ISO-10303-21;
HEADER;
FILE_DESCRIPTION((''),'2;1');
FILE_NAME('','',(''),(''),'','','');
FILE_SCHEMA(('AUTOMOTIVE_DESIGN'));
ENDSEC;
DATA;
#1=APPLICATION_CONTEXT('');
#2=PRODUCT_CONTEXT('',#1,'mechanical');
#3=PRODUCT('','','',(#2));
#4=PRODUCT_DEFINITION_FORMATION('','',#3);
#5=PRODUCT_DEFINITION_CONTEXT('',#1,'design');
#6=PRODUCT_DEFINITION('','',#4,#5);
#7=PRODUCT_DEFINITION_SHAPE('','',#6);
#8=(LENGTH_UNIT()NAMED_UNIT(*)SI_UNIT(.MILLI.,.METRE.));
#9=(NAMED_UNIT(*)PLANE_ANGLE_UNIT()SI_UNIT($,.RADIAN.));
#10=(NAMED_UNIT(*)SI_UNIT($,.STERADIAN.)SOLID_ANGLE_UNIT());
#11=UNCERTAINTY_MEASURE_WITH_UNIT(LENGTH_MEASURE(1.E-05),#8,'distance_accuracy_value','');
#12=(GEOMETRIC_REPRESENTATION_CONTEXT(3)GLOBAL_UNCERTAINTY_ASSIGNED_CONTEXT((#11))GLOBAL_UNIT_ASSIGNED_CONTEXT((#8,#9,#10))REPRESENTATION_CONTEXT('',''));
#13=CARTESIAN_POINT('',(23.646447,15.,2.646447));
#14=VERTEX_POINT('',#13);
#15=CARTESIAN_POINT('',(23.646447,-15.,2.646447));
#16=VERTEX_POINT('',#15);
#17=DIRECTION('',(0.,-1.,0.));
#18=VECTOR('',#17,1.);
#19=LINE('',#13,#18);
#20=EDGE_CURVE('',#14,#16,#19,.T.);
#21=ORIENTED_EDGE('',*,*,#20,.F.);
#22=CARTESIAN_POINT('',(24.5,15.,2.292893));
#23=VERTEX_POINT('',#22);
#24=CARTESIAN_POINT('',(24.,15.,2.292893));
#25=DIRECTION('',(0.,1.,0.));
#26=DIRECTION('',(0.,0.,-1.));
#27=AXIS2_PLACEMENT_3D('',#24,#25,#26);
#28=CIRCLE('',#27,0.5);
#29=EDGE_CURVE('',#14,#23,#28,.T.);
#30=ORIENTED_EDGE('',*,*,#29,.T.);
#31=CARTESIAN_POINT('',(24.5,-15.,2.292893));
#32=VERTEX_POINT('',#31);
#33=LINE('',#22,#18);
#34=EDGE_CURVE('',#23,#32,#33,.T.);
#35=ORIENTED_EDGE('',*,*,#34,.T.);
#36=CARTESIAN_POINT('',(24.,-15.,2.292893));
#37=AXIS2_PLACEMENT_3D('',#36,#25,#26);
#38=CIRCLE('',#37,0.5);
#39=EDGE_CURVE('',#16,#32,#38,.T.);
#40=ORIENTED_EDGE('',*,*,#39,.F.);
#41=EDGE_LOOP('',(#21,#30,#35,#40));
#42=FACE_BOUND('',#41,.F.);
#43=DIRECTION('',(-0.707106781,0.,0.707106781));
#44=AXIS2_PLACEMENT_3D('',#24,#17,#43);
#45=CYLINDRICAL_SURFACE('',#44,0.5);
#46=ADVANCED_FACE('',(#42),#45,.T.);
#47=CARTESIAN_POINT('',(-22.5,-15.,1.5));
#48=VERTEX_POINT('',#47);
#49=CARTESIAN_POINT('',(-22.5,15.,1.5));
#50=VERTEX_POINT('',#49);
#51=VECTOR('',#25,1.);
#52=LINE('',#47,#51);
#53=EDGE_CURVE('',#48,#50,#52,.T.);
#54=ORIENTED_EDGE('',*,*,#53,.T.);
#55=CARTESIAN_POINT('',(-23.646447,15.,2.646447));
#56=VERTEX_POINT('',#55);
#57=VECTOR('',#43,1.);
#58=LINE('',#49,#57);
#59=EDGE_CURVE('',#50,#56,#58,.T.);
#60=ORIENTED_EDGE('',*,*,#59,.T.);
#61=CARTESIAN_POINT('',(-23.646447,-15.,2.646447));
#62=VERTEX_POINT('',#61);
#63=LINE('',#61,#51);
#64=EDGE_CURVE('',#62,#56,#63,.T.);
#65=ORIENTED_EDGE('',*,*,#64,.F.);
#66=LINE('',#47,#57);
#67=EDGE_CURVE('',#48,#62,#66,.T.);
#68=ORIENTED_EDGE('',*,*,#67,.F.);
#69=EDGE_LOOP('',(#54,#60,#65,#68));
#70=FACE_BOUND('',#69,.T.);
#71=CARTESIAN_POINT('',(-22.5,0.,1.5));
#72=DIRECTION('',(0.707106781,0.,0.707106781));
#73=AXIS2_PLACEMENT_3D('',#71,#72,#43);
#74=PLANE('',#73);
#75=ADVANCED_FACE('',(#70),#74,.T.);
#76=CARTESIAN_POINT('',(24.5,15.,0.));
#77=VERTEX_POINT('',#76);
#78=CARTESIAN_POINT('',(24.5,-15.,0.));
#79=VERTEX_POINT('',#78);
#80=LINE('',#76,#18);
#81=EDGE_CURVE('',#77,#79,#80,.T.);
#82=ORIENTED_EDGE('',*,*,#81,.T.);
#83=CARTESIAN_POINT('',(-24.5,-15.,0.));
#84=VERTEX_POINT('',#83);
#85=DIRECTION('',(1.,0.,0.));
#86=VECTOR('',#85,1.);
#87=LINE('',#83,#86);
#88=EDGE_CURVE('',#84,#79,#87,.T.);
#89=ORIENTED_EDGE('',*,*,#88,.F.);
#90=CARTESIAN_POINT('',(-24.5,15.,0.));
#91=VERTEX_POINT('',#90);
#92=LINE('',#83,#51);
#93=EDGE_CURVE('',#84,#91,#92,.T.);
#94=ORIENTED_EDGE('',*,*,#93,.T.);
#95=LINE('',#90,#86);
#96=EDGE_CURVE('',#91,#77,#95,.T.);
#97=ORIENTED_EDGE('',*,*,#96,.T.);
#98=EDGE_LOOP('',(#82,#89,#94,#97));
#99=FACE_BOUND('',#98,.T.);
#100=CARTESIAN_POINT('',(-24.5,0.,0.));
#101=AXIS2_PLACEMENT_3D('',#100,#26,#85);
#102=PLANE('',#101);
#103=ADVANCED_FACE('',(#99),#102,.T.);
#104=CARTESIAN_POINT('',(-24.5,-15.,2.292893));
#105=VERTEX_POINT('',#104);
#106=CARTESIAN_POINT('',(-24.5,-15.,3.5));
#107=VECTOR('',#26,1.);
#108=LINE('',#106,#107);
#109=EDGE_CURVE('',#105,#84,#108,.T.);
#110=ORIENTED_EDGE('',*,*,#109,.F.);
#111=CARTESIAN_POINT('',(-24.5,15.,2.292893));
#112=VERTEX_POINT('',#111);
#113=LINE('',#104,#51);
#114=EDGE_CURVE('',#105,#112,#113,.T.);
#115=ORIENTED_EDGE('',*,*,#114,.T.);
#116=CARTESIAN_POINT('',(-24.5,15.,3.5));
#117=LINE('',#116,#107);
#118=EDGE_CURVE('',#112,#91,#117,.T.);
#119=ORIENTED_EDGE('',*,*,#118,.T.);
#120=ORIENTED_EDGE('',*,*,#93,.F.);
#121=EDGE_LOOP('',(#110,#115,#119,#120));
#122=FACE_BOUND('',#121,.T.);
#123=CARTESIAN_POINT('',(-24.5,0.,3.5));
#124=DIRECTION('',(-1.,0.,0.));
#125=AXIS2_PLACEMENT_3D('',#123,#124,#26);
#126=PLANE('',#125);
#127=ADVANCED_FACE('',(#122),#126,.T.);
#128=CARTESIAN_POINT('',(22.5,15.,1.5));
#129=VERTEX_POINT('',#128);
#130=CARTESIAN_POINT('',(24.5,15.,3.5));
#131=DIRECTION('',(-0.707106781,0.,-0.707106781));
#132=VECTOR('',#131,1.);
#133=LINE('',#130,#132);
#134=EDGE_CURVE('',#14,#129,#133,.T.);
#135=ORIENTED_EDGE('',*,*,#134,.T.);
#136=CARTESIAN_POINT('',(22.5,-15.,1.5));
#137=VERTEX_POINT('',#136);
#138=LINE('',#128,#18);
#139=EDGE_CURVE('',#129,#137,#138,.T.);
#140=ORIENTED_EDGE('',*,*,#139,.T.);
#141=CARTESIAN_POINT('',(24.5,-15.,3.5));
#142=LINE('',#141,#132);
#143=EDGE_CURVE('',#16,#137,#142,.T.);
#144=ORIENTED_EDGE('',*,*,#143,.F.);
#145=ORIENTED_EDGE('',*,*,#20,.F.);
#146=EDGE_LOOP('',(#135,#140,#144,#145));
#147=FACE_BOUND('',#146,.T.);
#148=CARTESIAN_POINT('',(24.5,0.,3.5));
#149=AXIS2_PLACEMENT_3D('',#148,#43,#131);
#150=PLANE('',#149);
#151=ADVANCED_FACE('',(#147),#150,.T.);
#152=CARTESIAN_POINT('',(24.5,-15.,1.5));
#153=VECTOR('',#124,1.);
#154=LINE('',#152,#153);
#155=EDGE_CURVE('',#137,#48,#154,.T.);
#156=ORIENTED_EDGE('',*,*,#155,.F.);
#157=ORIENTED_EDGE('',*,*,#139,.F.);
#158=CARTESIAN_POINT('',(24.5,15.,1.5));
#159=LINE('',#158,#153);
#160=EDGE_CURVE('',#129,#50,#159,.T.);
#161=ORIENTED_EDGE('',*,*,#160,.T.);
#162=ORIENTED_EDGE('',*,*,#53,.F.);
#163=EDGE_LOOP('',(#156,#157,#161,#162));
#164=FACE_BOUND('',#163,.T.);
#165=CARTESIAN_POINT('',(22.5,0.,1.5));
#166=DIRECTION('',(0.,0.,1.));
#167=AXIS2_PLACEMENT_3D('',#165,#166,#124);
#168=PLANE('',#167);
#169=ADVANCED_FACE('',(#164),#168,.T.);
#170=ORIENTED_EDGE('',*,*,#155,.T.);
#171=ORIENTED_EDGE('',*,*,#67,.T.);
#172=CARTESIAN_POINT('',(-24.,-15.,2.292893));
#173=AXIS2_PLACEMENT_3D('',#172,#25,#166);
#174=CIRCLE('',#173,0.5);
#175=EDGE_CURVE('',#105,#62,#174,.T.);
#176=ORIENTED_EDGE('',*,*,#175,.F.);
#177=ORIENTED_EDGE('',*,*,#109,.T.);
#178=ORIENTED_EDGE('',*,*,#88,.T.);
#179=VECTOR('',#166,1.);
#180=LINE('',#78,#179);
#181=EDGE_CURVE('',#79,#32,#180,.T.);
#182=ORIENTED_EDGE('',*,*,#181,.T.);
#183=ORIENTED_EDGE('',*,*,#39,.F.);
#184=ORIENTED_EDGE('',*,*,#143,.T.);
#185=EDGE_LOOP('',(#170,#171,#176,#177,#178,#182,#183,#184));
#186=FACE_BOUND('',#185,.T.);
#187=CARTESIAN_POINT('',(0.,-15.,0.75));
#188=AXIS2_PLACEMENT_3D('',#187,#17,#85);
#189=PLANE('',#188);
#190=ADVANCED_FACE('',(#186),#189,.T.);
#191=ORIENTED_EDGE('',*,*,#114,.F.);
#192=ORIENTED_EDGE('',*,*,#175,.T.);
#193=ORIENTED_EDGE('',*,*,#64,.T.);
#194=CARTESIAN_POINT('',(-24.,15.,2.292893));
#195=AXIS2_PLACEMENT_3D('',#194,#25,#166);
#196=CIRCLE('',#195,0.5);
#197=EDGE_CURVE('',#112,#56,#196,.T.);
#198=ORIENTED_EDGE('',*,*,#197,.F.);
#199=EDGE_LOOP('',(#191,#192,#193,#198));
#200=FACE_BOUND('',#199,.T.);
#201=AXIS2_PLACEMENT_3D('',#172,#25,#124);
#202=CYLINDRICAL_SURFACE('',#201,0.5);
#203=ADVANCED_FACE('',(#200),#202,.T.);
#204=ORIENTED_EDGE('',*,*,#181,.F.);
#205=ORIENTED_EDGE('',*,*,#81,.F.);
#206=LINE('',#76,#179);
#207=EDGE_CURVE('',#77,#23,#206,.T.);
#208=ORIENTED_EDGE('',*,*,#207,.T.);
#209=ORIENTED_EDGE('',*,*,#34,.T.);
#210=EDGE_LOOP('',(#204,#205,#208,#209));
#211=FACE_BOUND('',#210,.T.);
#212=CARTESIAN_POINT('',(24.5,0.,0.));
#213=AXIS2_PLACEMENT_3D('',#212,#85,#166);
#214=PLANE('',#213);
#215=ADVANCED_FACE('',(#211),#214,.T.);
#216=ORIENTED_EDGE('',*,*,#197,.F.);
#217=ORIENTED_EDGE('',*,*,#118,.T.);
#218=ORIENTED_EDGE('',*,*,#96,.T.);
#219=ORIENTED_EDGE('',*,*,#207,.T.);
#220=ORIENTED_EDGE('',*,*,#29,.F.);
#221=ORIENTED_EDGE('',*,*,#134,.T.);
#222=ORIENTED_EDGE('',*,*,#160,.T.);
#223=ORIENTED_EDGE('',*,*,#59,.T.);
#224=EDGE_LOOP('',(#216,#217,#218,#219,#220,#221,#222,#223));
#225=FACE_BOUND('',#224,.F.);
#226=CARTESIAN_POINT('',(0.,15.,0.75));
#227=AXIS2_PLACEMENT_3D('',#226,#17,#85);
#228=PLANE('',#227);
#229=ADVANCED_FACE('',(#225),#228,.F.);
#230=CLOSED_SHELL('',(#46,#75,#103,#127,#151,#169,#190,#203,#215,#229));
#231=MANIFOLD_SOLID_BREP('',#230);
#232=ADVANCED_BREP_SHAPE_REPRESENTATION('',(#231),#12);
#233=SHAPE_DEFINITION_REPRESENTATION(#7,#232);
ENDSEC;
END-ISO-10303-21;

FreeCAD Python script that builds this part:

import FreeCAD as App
import Part
import Sketcher


def edges_at(feature, points):
    """Names of the edges that pass closest to the given points."""
    edges = feature.Shape.Edges
    near = lambda p: min(range(len(edges)), key=lambda i: edges[i].distToShape(Part.Vertex(*p))[0])
    return sorted({f"Edge{near(p) + 1}" for p in points})

doc = App.newDocument("Part")
params = doc.addObject("Spreadsheet::Sheet", "Params")
for row, (alias, value) in enumerate([
    ("sketch1_width", "49 mm"),
    ("sketch1_width2", "45 mm"),
    ("sketch1_height", "3.5 mm"),
    ("pad1_length", "30 mm"),
    ("fillet_radius", "0.5 mm"),
], start=1):
    params.set(f"A{row}", alias)
    params.set(f"B{row}", "=" + value)
    params.setAlias(f"B{row}", alias)

body = doc.addObject("PartDesign::Body", "Body")

# Sketch on XZ plane
sketch1 = body.newObject("Sketcher::SketchObject", "Sketch")
sketch1.AttachmentSupport = (doc.getObject("XZ_Plane"), [""])
sketch1.MapMode = "FlatFace"
sketch1.addGeometry(Part.LineSegment(App.Vector(-24.5, 0, 0), App.Vector(24.5, 0, 0)), False)
sketch1.addGeometry(Part.LineSegment(App.Vector(24.5, 0, 0), App.Vector(24.5, 3.5, 0)), False)
sketch1.addGeometry(Part.LineSegment(App.Vector(24.5, 3.5, 0), App.Vector(22.5, 1.5, 0)), False)
sketch1.addGeometry(Part.LineSegment(App.Vector(22.5, 1.5, 0), App.Vector(-22.5, 1.5, 0)), False)
sketch1.addGeometry(Part.LineSegment(App.Vector(-22.5, 1.5, 0), App.Vector(-24.5, 3.5, 0)), False)
sketch1.addGeometry(Part.LineSegment(App.Vector(-24.5, 3.5, 0), App.Vector(-24.5, 0, 0)), False)
sketch1.addConstraint(Sketcher.Constraint("Coincident", 0, 2, 1, 1))
sketch1.addConstraint(Sketcher.Constraint("Coincident", 1, 2, 2, 1))
sketch1.addConstraint(Sketcher.Constraint("Coincident", 2, 2, 3, 1))
sketch1.addConstraint(Sketcher.Constraint("Coincident", 3, 2, 4, 1))
sketch1.addConstraint(Sketcher.Constraint("Coincident", 4, 2, 5, 1))
sketch1.addConstraint(Sketcher.Constraint("Coincident", 5, 2, 0, 1))
sketch1.addConstraint(Sketcher.Constraint("Horizontal", 0))
sketch1.addConstraint(Sketcher.Constraint("Vertical", 1))
sketch1.addConstraint(Sketcher.Constraint("Horizontal", 3))
sketch1.addConstraint(Sketcher.Constraint("Vertical", 5))
sketch1.addConstraint(Sketcher.Constraint("Symmetric", 0, 2, 5, 2, -1, 1))
sketch1.addConstraint(Sketcher.Constraint("Perpendicular", 2, 4))
sketch1.addConstraint(Sketcher.Constraint("Horizontal", 1, 2, 4, 2))
sketch1.addConstraint(Sketcher.Constraint("Equal", 2, 4))
sketch1.addConstraint(Sketcher.Constraint("DistanceX", 0, 1, 0, 2, 49.0))
sketch1.addConstraint(Sketcher.Constraint("DistanceX", 3, 2, 3, 1, 45.0))
sketch1.addConstraint(Sketcher.Constraint("DistanceY", 1, 1, 1, 2, 3.5))
sketch1.setExpression("Constraints[14]", "Params.sketch1_width")
sketch1.setExpression("Constraints[15]", "Params.sketch1_width2")
sketch1.setExpression("Constraints[16]", "Params.sketch1_height")
pad1 = body.newObject("PartDesign::Pad", "Pad")
pad1.Profile = sketch1
pad1.setExpression("Length", "Params.pad1_length")
pad1.Midplane = True
doc.recompute()

fillet = body.newObject("PartDesign::Fillet", "Fillet")
fillet.Base = (pad1, edges_at(pad1, [(-24.5, 0, 3.5), (24.5, 0, 3.5)]))
fillet.setExpression("Radius", "Params.fillet_radius")

doc.recompute()
